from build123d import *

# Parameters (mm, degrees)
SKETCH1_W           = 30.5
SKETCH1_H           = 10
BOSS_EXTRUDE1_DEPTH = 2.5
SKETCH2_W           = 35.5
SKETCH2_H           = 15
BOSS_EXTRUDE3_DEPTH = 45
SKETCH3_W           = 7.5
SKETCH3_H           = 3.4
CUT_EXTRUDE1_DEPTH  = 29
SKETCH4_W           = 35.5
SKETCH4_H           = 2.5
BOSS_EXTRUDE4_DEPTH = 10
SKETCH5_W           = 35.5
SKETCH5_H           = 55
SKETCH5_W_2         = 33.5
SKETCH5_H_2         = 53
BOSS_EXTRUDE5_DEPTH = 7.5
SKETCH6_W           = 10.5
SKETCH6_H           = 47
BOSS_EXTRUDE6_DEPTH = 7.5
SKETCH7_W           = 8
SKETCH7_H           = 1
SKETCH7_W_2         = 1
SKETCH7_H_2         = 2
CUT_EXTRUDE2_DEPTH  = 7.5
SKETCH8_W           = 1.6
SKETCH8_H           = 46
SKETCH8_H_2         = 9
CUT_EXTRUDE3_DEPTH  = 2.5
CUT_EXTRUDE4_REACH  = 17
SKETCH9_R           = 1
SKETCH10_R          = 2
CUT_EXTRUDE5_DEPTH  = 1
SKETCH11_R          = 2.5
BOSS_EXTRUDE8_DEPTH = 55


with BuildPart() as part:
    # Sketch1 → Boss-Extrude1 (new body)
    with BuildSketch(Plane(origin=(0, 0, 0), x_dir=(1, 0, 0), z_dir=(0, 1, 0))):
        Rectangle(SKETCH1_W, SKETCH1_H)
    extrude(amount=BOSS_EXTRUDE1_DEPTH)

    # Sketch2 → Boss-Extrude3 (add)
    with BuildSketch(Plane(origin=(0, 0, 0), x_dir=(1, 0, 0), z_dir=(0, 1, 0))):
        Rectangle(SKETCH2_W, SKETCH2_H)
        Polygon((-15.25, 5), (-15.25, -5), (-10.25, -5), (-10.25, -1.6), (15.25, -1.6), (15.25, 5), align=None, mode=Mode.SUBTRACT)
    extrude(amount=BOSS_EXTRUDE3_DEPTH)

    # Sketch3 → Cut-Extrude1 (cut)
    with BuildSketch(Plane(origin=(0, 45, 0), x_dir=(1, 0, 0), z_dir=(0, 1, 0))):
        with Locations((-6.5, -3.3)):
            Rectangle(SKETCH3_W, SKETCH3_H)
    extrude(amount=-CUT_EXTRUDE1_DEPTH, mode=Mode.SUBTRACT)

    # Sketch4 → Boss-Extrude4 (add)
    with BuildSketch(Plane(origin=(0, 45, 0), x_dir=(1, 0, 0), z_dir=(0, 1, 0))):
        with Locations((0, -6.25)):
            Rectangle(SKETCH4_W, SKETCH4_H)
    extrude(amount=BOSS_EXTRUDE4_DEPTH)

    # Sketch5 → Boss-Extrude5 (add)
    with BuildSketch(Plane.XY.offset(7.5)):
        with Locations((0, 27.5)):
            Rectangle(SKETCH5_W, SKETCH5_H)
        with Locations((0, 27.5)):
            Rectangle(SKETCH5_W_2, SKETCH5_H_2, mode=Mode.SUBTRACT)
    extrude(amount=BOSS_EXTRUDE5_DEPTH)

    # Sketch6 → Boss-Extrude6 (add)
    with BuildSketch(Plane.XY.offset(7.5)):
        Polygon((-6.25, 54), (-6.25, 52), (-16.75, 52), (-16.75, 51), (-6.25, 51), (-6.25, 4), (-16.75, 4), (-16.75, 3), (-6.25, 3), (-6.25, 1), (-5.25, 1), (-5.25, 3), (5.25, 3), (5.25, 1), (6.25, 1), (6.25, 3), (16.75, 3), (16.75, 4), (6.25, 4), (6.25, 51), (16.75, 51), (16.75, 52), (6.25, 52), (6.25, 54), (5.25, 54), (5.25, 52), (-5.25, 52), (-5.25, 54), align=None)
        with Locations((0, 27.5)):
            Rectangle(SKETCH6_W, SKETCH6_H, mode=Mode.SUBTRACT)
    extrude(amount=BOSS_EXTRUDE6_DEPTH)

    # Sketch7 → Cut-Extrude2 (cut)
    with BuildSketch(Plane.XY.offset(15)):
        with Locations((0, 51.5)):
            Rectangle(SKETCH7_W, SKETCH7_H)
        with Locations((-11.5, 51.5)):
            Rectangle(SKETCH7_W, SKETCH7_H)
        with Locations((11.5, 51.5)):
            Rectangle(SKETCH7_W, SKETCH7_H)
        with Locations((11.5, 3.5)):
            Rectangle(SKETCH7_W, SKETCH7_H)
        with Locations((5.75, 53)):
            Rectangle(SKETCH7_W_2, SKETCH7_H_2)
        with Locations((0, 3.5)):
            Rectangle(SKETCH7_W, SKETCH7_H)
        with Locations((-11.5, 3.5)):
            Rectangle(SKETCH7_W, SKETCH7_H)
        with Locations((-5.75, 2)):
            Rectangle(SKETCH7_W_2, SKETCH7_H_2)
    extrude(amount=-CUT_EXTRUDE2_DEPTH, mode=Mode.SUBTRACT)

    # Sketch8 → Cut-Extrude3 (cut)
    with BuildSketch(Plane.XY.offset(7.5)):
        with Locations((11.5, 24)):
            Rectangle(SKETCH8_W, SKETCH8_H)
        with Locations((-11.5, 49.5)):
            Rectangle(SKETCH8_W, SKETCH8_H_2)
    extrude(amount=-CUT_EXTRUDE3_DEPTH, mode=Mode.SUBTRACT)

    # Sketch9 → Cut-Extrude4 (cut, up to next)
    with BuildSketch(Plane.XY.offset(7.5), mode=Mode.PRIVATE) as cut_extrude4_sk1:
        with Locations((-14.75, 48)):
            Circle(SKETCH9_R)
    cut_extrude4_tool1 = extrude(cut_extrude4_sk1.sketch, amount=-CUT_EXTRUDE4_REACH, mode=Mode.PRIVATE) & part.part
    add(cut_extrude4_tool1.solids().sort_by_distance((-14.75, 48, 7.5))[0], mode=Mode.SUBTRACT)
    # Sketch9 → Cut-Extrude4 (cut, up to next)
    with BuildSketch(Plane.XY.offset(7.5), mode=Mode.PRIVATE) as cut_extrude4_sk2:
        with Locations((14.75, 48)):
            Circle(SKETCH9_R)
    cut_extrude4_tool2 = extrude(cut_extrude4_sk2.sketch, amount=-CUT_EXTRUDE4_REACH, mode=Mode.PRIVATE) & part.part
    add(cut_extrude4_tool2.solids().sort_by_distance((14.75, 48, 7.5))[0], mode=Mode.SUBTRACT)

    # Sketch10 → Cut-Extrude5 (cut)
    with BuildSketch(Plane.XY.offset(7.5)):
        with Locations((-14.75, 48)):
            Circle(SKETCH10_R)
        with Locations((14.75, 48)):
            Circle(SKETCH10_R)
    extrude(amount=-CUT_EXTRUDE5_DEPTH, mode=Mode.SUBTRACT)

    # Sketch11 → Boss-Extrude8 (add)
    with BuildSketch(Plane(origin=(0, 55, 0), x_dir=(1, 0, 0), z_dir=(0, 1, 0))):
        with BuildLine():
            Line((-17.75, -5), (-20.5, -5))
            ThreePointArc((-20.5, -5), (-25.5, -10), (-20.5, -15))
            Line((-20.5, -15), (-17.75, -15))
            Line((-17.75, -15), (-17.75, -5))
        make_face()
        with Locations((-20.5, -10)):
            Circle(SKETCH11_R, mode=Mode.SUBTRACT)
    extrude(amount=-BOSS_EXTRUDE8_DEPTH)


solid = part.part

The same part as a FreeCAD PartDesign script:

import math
import FreeCAD as App
import Part
import Sketcher

V = App.Vector


def add_polygon(sketch, points):
    """Adds a closed chain of lines whose ends are joined by coincident constraints."""
    first, n = sketch.GeometryCount, len(points)
    for a, b in zip(points, points[1:] + points[:1]):
        sketch.addGeometry(Part.LineSegment(App.Vector(*a, 0), App.Vector(*b, 0)), False)
    for i in range(n):
        sketch.addConstraint(Sketcher.Constraint("Coincident", first + i, 2, first + (i + 1) % n, 1))

doc = App.newDocument("Part")
body = doc.addObject("PartDesign::Body", "Body")

sketch1 = body.newObject("Sketcher::SketchObject", "Sketch")
sketch1.AttachmentSupport = (doc.getObject("XZ_Plane"), [""])
sketch1.MapMode = "FlatFace"
add_polygon(sketch1, [(-15.25, -5), (-15.25, 5), (15.25, 5), (15.25, -5)])
sketch1.addConstraint([
    Sketcher.Constraint("Vertical", 0),
    Sketcher.Constraint("Horizontal", 1),
    Sketcher.Constraint("Vertical", 2),
    Sketcher.Constraint("Horizontal", 3),
    Sketcher.Constraint("Symmetric", 0, 2, 2, 2, -1, 1),
    Sketcher.Constraint("DistanceY", 0, 1, 0, 2, 10.0),
    Sketcher.Constraint("DistanceX", 1, 1, 1, 2, 30.5),
])
pad1 = body.newObject("PartDesign::Pad", "Pad")
pad1.Profile = sketch1
pad1.Length = 2.5
pad1.Reversed = True

sketch2 = body.newObject("Sketcher::SketchObject", "Sketch001")
sketch2.AttachmentSupport = (doc.getObject("XZ_Plane"), [""])
sketch2.MapMode = "FlatFace"
add_polygon(sketch2, [(-17.75, -7.5), (-17.75, 7.5), (17.75, 7.5), (17.75, -7.5)])
add_polygon(sketch2, [(-15.25, 5), (-15.25, -5), (15.25, -5), (15.25, 1.6), (-10.25, 1.6), (-10.25, 5)])
sketch2.addConstraint([
    Sketcher.Constraint("Vertical", 0),
    Sketcher.Constraint("Horizontal", 1),
    Sketcher.Constraint("Vertical", 2),
    Sketcher.Constraint("Horizontal", 3),
    Sketcher.Constraint("Vertical", 4),
    Sketcher.Constraint("Horizontal", 5),
    Sketcher.Constraint("Vertical", 6),
    Sketcher.Constraint("Horizontal", 7),
    Sketcher.Constraint("Vertical", 8),
    Sketcher.Constraint("Horizontal", 9),
    Sketcher.Constraint("Symmetric", 0, 2, 2, 2, -1, 1),
    Sketcher.Constraint("Symmetric", 5, 2, 9, 2, -1, 1),
    Sketcher.Constraint("DistanceX", 9, 2, 9, 1, 5.0),
    Sketcher.Constraint("DistanceY", 0, 1, 0, 2, 15.0),
    Sketcher.Constraint("DistanceY", 4, 2, 4, 1, 10.0),
    Sketcher.Constraint("DistanceX", 1, 1, 1, 2, 35.5),
    Sketcher.Constraint("DistanceX", 5, 1, 5, 2, 30.5),
    Sketcher.Constraint("DistanceY", 6, 1, 6, 2, 6.6),
])
pad2 = body.newObject("PartDesign::Pad", "Pad001")
pad2.Profile = sketch2
pad2.Length = 45
pad2.Reversed = True

sketch3 = body.newObject("Sketcher::SketchObject", "Sketch002")
sketch3.AttachmentSupport = (doc.getObject("XZ_Plane"), [""])
sketch3.MapMode = "FlatFace"
sketch3.AttachmentOffset = App.Placement(V(0, 0, -45), App.Rotation())
add_polygon(sketch3, [(-10.25, 1.6), (-10.25, 5), (-2.75, 5), (-2.75, 1.6)])
sketch3.addConstraint([
    Sketcher.Constraint("Vertical", 0),
    Sketcher.Constraint("Horizontal", 1),
    Sketcher.Constraint("Vertical", 2),
    Sketcher.Constraint("Horizontal", 3),
    Sketcher.Constraint("DistanceX", 1, 1, 1, 2, 7.5),
    Sketcher.Constraint("DistanceY", 0, 1, 0, 2, 3.4),
    Sketcher.Constraint("DistanceY", -1, 1, 0, 2, 5.0),
    Sketcher.Constraint("DistanceX", 0, 2, -1, 1, 10.25),
])
pocket1 = body.newObject("PartDesign::Pocket", "Pocket")
pocket1.Profile = sketch3
pocket1.Length = 29
pocket1.Reversed = True

sketch4 = body.newObject("Sketcher::SketchObject", "Sketch003")
sketch4.AttachmentSupport = (doc.getObject("XZ_Plane"), [""])
sketch4.MapMode = "FlatFace"
sketch4.AttachmentOffset = App.Placement(V(0, 0, -45), App.Rotation())
add_polygon(sketch4, [(-17.75, 5), (-17.75, 7.5), (17.75, 7.5), (17.75, 5)])
sketch4.addConstraint([
    Sketcher.Constraint("Vertical", 0),
    Sketcher.Constraint("Horizontal", 1),
    Sketcher.Constraint("Vertical", 2),
    Sketcher.Constraint("Horizontal", 3),
    Sketcher.Constraint("DistanceX", 1, 1, 1, 2, 35.5),
    Sketcher.Constraint("DistanceY", 0, 1, 0, 2, 2.5),
    Sketcher.Constraint("DistanceY", -1, 1, 2, 2, 5.0),
    Sketcher.Constraint("DistanceX", 0, 2, -1, 1, 17.75),
])
pad3 = body.newObject("PartDesign::Pad", "Pad002")
pad3.Profile = sketch4
pad3.Length = 10
pad3.Reversed = True

sketch5 = body.newObject("Sketcher::SketchObject", "Sketch004")
sketch5.AttachmentSupport = (doc.getObject("XY_Plane"), [""])
sketch5.MapMode = "FlatFace"
sketch5.AttachmentOffset = App.Placement(V(0, 0, 7.5), App.Rotation())
add_polygon(sketch5, [(-17.75, 55), (-17.75, 0), (17.75, 0), (17.75, 55)])
add_polygon(sketch5, [(16.75, 1), (-16.75, 1), (-16.75, 54), (16.75, 54)])
sketch5.addConstraint([
    Sketcher.Constraint("Vertical", 0),
    Sketcher.Constraint("Horizontal", 1),
    Sketcher.Constraint("Vertical", 2),
    Sketcher.Constraint("Horizontal", 3),
    Sketcher.Constraint("Horizontal", 4),
    Sketcher.Constraint("Vertical", 5),
    Sketcher.Constraint("Horizontal", 6),
    Sketcher.Constraint("Vertical", 7),
    Sketcher.Constraint("Symmetric", 0, 2, 1, 2, -1, 1),
    Sketcher.Constraint("DistanceY", 0, 2, 0, 1, 55.0),
    Sketcher.Constraint("DistanceY", 5, 1, 5, 2, 53.0),
    Sketcher.Constraint("DistanceX", 1, 1, 1, 2, 35.5),
    Sketcher.Constraint("DistanceX", 4, 2, 4, 1, 33.5),
    Sketcher.Constraint("DistanceY", -1, 1, 4, 2, 1.0),
    Sketcher.Constraint("DistanceX", 0, 2, 4, 2, 1.0),
])
pad4 = body.newObject("PartDesign::Pad", "Pad003")
pad4.Profile = sketch5
pad4.Length = 7.5

sketch6 = body.newObject("Sketcher::SketchObject", "Sketch005")
sketch6.AttachmentSupport = (doc.getObject("XY_Plane"), [""])
sketch6.MapMode = "FlatFace"
sketch6.AttachmentOffset = App.Placement(V(0, 0, 7.5), App.Rotation())
add_polygon(sketch6, [(-6.25, 54), (-6.25, 52), (-16.75, 52), (-16.75, 51), (-6.25, 51), (-6.25, 4), (-16.75, 4), (-16.75, 3), (-6.25, 3), (-6.25, 1), (-5.25, 1), (-5.25, 3), (5.25, 3), (5.25, 1), (6.25, 1), (6.25, 3), (16.75, 3), (16.75, 4), (6.25, 4), (6.25, 51), (16.75, 51), (16.75, 52), (6.25, 52), (6.25, 54), (5.25, 54), (5.25, 52), (-5.25, 52), (-5.25, 54)])
add_polygon(sketch6, [(5.25, 4), (-5.25, 4), (-5.25, 51), (5.25, 51)])
sketch6.addConstraint([
    Sketcher.Constraint("Vertical", 0),
    Sketcher.Constraint("Horizontal", 1),
    Sketcher.Constraint("Vertical", 2),
    Sketcher.Constraint("Horizontal", 3),
    Sketcher.Constraint("Vertical", 4),
    Sketcher.Constraint("Horizontal", 5),
    Sketcher.Constraint("Vertical", 6),
    Sketcher.Constraint("Horizontal", 7),
    Sketcher.Constraint("Vertical", 8),
    Sketcher.Constraint("Horizontal", 9),
    Sketcher.Constraint("Vertical", 10),
    Sketcher.Constraint("Horizontal", 11),
    Sketcher.Constraint("Vertical", 12),
    Sketcher.Constraint("Horizontal", 13),
    Sketcher.Constraint("Vertical", 14),
    Sketcher.Constraint("Horizontal", 15),
    Sketcher.Constraint("Vertical", 16),
    Sketcher.Constraint("Horizontal", 17),
    Sketcher.Constraint("Vertical", 18),
    Sketcher.Constraint("Horizontal", 19),
    Sketcher.Constraint("Vertical", 20),
    Sketcher.Constraint("Horizontal", 21),
    Sketcher.Constraint("Vertical", 22),
    Sketcher.Constraint("Horizontal", 23),
    Sketcher.Constraint("Vertical", 24),
    Sketcher.Constraint("Horizontal", 25),
    Sketcher.Constraint("Vertical", 26),
    Sketcher.Constraint("Horizontal", 27),
    Sketcher.Constraint("Horizontal", 28),
    Sketcher.Constraint("Vertical", 29),
    Sketcher.Constraint("Horizontal", 30),
    Sketcher.Constraint("Vertical", 31),
    Sketcher.Constraint("Symmetric", 9, 2, 12, 2, -2),
    Sketcher.Constraint("Symmetric", 7, 2, 14, 2, -2),
    Sketcher.Constraint("Symmetric", 5, 2, 16, 2, -2),
    Sketcher.Constraint("Symmetric", 3, 2, 18, 2, -2),
    Sketcher.Constraint("Symmetric", 1, 2, 20, 2, -2),
    Sketcher.Constraint("Symmetric", 23, 2, 26, 2, -2),
    Sketcher.Constraint("Horizontal", 7, 2, 10, 2),
    Sketcher.Constraint("Horizontal", 21, 2, 24, 2),
    Sketcher.Constraint("Horizontal", 17, 2, 28, 2),
    Sketcher.Constraint("Horizontal", 19, 2, 29, 2),
    Sketcher.Constraint("Vertical", 0, 2, 3, 2),
    Sketcher.Constraint("Vertical", 2, 2, 5, 2),
    Sketcher.Constraint("Vertical", 4, 2, 7, 2),
    Sketcher.Constraint("Vertical", 18, 2, 21, 2),
    Sketcher.Constraint("Vertical", 12, 2, 23, 2),
    Sketcher.Constraint("Vertical", 26, 2, 28, 2),
    Sketcher.Constraint("Vertical", 24, 2, 30, 2),
    Sketcher.Constraint("Equal", 7, 11),
    Sketcher.Constraint("Equal", 27, 2),
    Sketcher.Constraint("Equal", 2, 6),
    Sketcher.Constraint("Equal", 0, 8),
    Sketcher.Constraint("DistanceX", 9, 1, 9, 2, 1.0),
    Sketcher.Constraint("DistanceY", 0, 2, 0, 1, 2.0),
    Sketcher.Constraint("DistanceY", 4, 2, 4, 1, 47.0),
    Sketcher.Constraint("DistanceX", 1, 2, 1, 1, 10.5),
    Sketcher.Constraint("DistanceY", -1, 1, 0, 2, 52.0),
])
pad5 = body.newObject("PartDesign::Pad", "Pad004")
pad5.Profile = sketch6
pad5.Length = 7.5

sketch7 = body.newObject("Sketcher::SketchObject", "Sketch006")
sketch7.AttachmentSupport = (doc.getObject("XY_Plane"), [""])
sketch7.MapMode = "FlatFace"
sketch7.AttachmentOffset = App.Placement(V(0, 0, 15), App.Rotation())
add_polygon(sketch7, [(-4, 52), (-4, 51), (4, 51), (4, 52)])
add_polygon(sketch7, [(-15.5, 52), (-15.5, 51), (-7.5, 51), (-7.5, 52)])
add_polygon(sketch7, [(7.5, 52), (7.5, 51), (15.5, 51), (15.5, 52)])
add_polygon(sketch7, [(7.5, 4), (7.5, 3), (15.5, 3), (15.5, 4)])
add_polygon(sketch7, [(5.25, 54), (5.25, 52), (6.25, 52), (6.25, 54)])
add_polygon(sketch7, [(-4, 4), (-4, 3), (4, 3), (4, 4)])
add_polygon(sketch7, [(-15.5, 4), (-15.5, 3), (-7.5, 3), (-7.5, 4)])
add_polygon(sketch7, [(-6.25, 3), (-6.25, 1), (-5.25, 1), (-5.25, 3)])
sketch7.addConstraint([
    Sketcher.Constraint("Vertical", 0),
    Sketcher.Constraint("Horizontal", 1),
    Sketcher.Constraint("Vertical", 2),
    Sketcher.Constraint("Horizontal", 3),
    Sketcher.Constraint("Vertical", 4),
    Sketcher.Constraint("Horizontal", 5),
    Sketcher.Constraint("Vertical", 6),
    Sketcher.Constraint("Horizontal", 7),
    Sketcher.Constraint("Vertical", 8),
    Sketcher.Constraint("Horizontal", 9),
    Sketcher.Constraint("Vertical", 10),
    Sketcher.Constraint("Horizontal", 11),
    Sketcher.Constraint("Vertical", 12),
    Sketcher.Constraint("Horizontal", 13),
    Sketcher.Constraint("Vertical", 14),
    Sketcher.Constraint("Horizontal", 15),
    Sketcher.Constraint("Vertical", 16),
    Sketcher.Constraint("Horizontal", 17),
    Sketcher.Constraint("Vertical", 18),
    Sketcher.Constraint("Horizontal", 19),
    Sketcher.Constraint("Vertical", 20),
    Sketcher.Constraint("Horizontal", 21),
    Sketcher.Constraint("Vertical", 22),
    Sketcher.Constraint("Horizontal", 23),
    Sketcher.Constraint("Vertical", 24),
    Sketcher.Constraint("Horizontal", 25),
    Sketcher.Constraint("Vertical", 26),
    Sketcher.Constraint("Horizontal", 27),
    Sketcher.Constraint("Vertical", 28),
    Sketcher.Constraint("Horizontal", 29),
    Sketcher.Constraint("Vertical", 30),
    Sketcher.Constraint("Horizontal", 31),
    Sketcher.Constraint("Symmetric", 5, 2, 8, 2, -2),
    Sketcher.Constraint("Symmetric", 7, 2, 10, 2, -2),
    Sketcher.Constraint("Symmetric", 13, 2, 24, 2, -2),
    Sketcher.Constraint("Symmetric", 15, 2, 26, 2, -2),
    Sketcher.Constraint("Horizontal", 1, 2, 4, 2),
    Sketcher.Constraint("Horizontal", 3, 2, 6, 2),
    Sketcher.Constraint("Horizontal", 11, 2, 16, 2),
    Sketcher.Constraint("Horizontal", 13, 2, 20, 2),
    Sketcher.Constraint("Horizontal", 15, 2, 22, 2),
    Sketcher.Constraint("Horizontal", 25, 2, 30, 2),
    Sketcher.Constraint("Vertical", 11, 2, 12, 2),
    Sketcher.Constraint("Vertical", 10, 2, 13, 2),
    Sketcher.Constraint("Vertical", 3, 2, 20, 2),
    Sketcher.Constraint("Vertical", 2, 2, 21, 2),
    Sketcher.Constraint("Equal", 3, 5),
    Sketcher.Constraint("Equal", 19, 29),
    Sketcher.Constraint("Equal", 31, 0),
    Sketcher.Constraint("Equal", 10, 12),
    Sketcher.Constraint("Equal", 18, 28),
    Sketcher.Constraint("DistanceX", 1, 1, 1, 2, 8.0),
    Sketcher.Constraint("DistanceX", 17, 1, 17, 2, 1.0),
    Sketcher.Constraint("DistanceY", 16, 2, 16, 1, 2.0),
    Sketcher.Constraint("DistanceX", 0, 2, -1, 1, 4.0),
    Sketcher.Constraint("DistanceY", -1, 1, 0, 2, 51.0),
    Sketcher.Constraint("DistanceY", -1, 1, 12, 2, 3.0),
    Sketcher.Constraint("DistanceX", 5, 2, 8, 2, 15.0),
    Sketcher.Constraint("DistanceX", -1, 1, 16, 2, 5.25),
    Sketcher.Constraint("DistanceX", 28, 2, -1, 1, 6.25),
])
pocket2 = body.newObject("PartDesign::Pocket", "Pocket001")
pocket2.Profile = sketch7
pocket2.Length = 7.5

sketch8 = body.newObject("Sketcher::SketchObject", "Sketch007")
sketch8.AttachmentSupport = (doc.getObject("XY_Plane"), [""])
sketch8.MapMode = "FlatFace"
sketch8.AttachmentOffset = App.Placement(V(0, 0, 7.5), App.Rotation())
add_polygon(sketch8, [(10.7, 47), (10.7, 1), (12.3, 1), (12.3, 47)])
add_polygon(sketch8, [(-12.3, 54), (-12.3, 45), (-10.7, 45), (-10.7, 54)])
sketch8.addConstraint([
    Sketcher.Constraint("Vertical", 0),
    Sketcher.Constraint("Horizontal", 1),
    Sketcher.Constraint("Vertical", 2),
    Sketcher.Constraint("Horizontal", 3),
    Sketcher.Constraint("Vertical", 4),
    Sketcher.Constraint("Horizontal", 5),
    Sketcher.Constraint("Vertical", 6),
    Sketcher.Constraint("Horizontal", 7),
    Sketcher.Constraint("Equal", 3, 5),
    Sketcher.Constraint("DistanceY", 0, 2, 0, 1, 46.0),
    Sketcher.Constraint("DistanceY", 4, 2, 4, 1, 9.0),
    Sketcher.Constraint("DistanceX", 1, 1, 1, 2, 1.6),
    Sketcher.Constraint("DistanceY", -1, 1, 0, 2, 1.0),
    Sketcher.Constraint("DistanceY", -1, 1, 4, 2, 45.0),
    Sketcher.Constraint("DistanceX", 4, 2, 3, 2, 23.0),
    Sketcher.Constraint("DistanceX", -1, 1, 0, 2, 10.7),
])
pocket3 = body.newObject("PartDesign::Pocket", "Pocket002")
pocket3.Profile = sketch8
pocket3.Length = 2.5

sketch9 = body.newObject("Sketcher::SketchObject", "Sketch008")
sketch9.AttachmentSupport = (doc.getObject("XY_Plane"), [""])
sketch9.MapMode = "FlatFace"
sketch9.AttachmentOffset = App.Placement(V(0, 0, 7.5), App.Rotation())
sketch9.addGeometry(Part.Circle(V(-14.75, 48, 0), V(0, 0, 1), 1), False)
sketch9.addConstraint([
    Sketcher.Constraint("Diameter", 0, 2.0),
    Sketcher.Constraint("DistanceY", -1, 1, 0, 3, 48.0),
    Sketcher.Constraint("DistanceX", 0, 3, -1, 1, 14.75),
])
pocket4 = body.newObject("PartDesign::Pocket", "Pocket003")
pocket4.Profile = sketch9
pocket4.Type = "UpToFirst"

sketch10 = body.newObject("Sketcher::SketchObject", "Sketch009")
sketch10.AttachmentSupport = (doc.getObject("XY_Plane"), [""])
sketch10.MapMode = "FlatFace"
sketch10.AttachmentOffset = App.Placement(V(0, 0, 7.5), App.Rotation())
sketch10.addGeometry(Part.Circle(V(14.75, 48, 0), V(0, 0, 1), 1), False)
sketch10.addConstraint([
    Sketcher.Constraint("Diameter", 0, 2.0),
    Sketcher.Constraint("DistanceY", -1, 1, 0, 3, 48.0),
    Sketcher.Constraint("DistanceX", -1, 1, 0, 3, 14.75),
])
pocket5 = body.newObject("PartDesign::Pocket", "Pocket004")
pocket5.Profile = sketch10
pocket5.Type = "UpToFirst"

sketch11 = body.newObject("Sketcher::SketchObject", "Sketch010")
sketch11.AttachmentSupport = (doc.getObject("XY_Plane"), [""])
sketch11.MapMode = "FlatFace"
sketch11.AttachmentOffset = App.Placement(V(0, 0, 7.5), App.Rotation())
sketch11.addGeometry([
    Part.Circle(V(-14.75, 48, 0), V(0, 0, 1), 2),
    Part.Circle(V(14.75, 48, 0), V(0, 0, 1), 2),
], False)
sketch11.addConstraint([
    Sketcher.Constraint("Equal", 0, 1),
    Sketcher.Constraint("Symmetric", 0, 3, 1, 3, -2),
    Sketcher.Constraint("Diameter", 0, 4.0),
    Sketcher.Constraint("DistanceY", -1, 1, 0, 3, 48.0),
    Sketcher.Constraint("DistanceX", 0, 3, 1, 3, 29.5),
])
pocket6 = body.newObject("PartDesign::Pocket", "Pocket005")
pocket6.Profile = sketch11
pocket6.Length = 1

sketch12 = body.newObject("Sketcher::SketchObject", "Sketch011")
sketch12.AttachmentSupport = (doc.getObject("XZ_Plane"), [""])
sketch12.MapMode = "FlatFace"
sketch12.AttachmentOffset = App.Placement(V(0, 0, -55), App.Rotation())
sketch12.addGeometry([
    Part.LineSegment(V(-17.75, 5, 0), V(-20.5, 5, 0)),
    Part.ArcOfCircle(Part.Circle(V(-20.5, 10, 0), V(0, 0, 1), 5), math.radians(90), math.radians(270)),
    Part.LineSegment(V(-20.5, 15, 0), V(-17.75, 15, 0)),
    Part.LineSegment(V(-17.75, 15, 0), V(-17.75, 5, 0)),
    Part.Circle(V(-20.5, 10, 0), V(0, 0, 1), 2.5),
], False)
sketch12.addConstraint([
    Sketcher.Constraint("Tangent", 0, 2, 1, 2),
    Sketcher.Constraint("Tangent", 1, 1, 2, 1),
    Sketcher.Constraint("Coincident", 2, 2, 3, 1),
    Sketcher.Constraint("Coincident", 3, 2, 0, 1),
    Sketcher.Constraint("Horizontal", 0),
    Sketcher.Constraint("Horizontal", 2),
    Sketcher.Constraint("Vertical", 3),
    Sketcher.Constraint("Coincident", 4, 3, 1, 3),
    Sketcher.Constraint("Diameter", 4, 5.0),
    Sketcher.Constraint("Radius", 1, 5.0),
    Sketcher.Constraint("DistanceY", -1, 1, 1, 3, 10.0),
    Sketcher.Constraint("DistanceX", 0, 2, 0, 1, 2.75),
    Sketcher.Constraint("DistanceX", 1, 3, -1, 1, 20.5),
])
pad6 = body.newObject("PartDesign::Pad", "Pad005")
pad6.Profile = sketch12
pad6.Length = 55

doc.recompute()
